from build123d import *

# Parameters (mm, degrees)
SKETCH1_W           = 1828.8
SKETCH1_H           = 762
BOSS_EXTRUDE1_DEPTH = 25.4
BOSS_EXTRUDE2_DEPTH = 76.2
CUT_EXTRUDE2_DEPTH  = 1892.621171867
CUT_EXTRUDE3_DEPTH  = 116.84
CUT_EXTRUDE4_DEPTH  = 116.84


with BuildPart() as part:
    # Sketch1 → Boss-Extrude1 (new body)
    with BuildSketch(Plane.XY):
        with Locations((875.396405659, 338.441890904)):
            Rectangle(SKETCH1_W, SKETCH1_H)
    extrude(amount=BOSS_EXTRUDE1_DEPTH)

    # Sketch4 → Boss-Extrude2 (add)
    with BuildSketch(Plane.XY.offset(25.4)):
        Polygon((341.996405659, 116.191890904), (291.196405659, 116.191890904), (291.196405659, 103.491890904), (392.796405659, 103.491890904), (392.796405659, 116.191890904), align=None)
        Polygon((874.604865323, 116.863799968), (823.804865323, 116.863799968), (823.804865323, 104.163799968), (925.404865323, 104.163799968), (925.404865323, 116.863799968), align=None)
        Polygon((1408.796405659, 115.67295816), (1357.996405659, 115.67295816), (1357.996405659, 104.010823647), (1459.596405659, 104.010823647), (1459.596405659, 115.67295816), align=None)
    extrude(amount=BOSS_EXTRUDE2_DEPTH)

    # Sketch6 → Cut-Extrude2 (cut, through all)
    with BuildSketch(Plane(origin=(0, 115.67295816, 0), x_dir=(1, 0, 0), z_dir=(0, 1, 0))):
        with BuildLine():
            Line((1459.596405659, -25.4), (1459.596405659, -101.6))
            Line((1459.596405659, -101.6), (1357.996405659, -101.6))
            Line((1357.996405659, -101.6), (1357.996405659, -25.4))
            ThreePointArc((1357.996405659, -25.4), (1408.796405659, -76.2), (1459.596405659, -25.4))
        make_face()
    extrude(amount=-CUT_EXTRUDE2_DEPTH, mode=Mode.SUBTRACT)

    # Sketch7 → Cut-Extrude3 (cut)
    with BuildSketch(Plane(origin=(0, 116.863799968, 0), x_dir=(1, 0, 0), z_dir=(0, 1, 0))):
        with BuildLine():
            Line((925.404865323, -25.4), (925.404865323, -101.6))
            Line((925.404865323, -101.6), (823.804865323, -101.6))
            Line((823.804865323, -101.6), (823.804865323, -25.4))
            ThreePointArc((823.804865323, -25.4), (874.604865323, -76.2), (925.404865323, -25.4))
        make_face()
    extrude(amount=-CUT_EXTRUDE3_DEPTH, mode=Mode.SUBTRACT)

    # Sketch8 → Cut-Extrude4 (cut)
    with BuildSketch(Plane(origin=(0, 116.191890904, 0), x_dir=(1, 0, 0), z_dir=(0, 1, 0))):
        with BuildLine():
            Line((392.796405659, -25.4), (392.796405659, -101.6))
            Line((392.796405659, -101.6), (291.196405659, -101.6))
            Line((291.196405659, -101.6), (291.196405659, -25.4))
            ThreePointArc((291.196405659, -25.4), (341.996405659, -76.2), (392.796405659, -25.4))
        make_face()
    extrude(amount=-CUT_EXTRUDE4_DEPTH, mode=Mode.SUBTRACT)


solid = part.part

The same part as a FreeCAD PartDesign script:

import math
import FreeCAD as App
import Part
import Sketcher
Q = App.Units.Quantity

doc = App.newDocument("Part")
body = doc.addObject("PartDesign::Body", "Body")

# Sketch on XY plane
sketch1 = body.newObject("Sketcher::SketchObject", "Sketch")
sketch1.AttachmentSupport = (doc.getObject("XY_Plane"), [""])
sketch1.MapMode = "FlatFace"
sketch1.addGeometry([
    Part.LineSegment(App.Vector(-39, 719, 0), App.Vector(-39, -43, 0)),
    Part.LineSegment(App.Vector(-39, -43, 0), App.Vector(1790, -43, 0)),
    Part.LineSegment(App.Vector(1790, -43, 0), App.Vector(1790, 719, 0)),
    Part.LineSegment(App.Vector(1790, 719, 0), App.Vector(-39, 719, 0)),
], False)
sketch1.addConstraint([
    Sketcher.Constraint("Coincident", 0, 2, 1, 1),
    Sketcher.Constraint("Coincident", 1, 2, 2, 1),
    Sketcher.Constraint("Coincident", 2, 2, 3, 1),
    Sketcher.Constraint("Coincident", 3, 2, 0, 1),
    Sketcher.Constraint("Vertical", 0),
    Sketcher.Constraint("Horizontal", 1),
    Sketcher.Constraint("Vertical", 2),
    Sketcher.Constraint("Horizontal", 3),
    Sketcher.Constraint("DistanceX", 1, 1, 1, 2, Q("72 in")),
    Sketcher.Constraint("DistanceY", 0, 2, 0, 1, Q("30 in")),
    Sketcher.Constraint("DistanceY", 0, 2, -1, 1, 42.558109),
    Sketcher.Constraint("DistanceX", 0, 2, -1, 1, 39.003594),
])
pad1 = body.newObject("PartDesign::Pad", "Pad")
pad1.Profile = sketch1
pad1.Length = Q("1 in")

# Sketch on XY plane
sketch2 = body.newObject("Sketcher::SketchObject", "Sketch001")
sketch2.AttachmentSupport = (doc.getObject("XY_Plane"), [""])
sketch2.MapMode = "FlatFace"
sketch2.AttachmentOffset = App.Placement(App.Vector(0, 0, 1 * 25.4), App.Rotation())
sketch2.addGeometry([
    Part.LineSegment(App.Vector(291, 116, 0), App.Vector(291, 103, 0)),  # 0
    Part.LineSegment(App.Vector(291, 103, 0), App.Vector(393, 103, 0)),  # 1
    Part.LineSegment(App.Vector(393, 103, 0), App.Vector(393, 116, 0)),  # 2
    Part.LineSegment(App.Vector(393, 116, 0), App.Vector(291, 116, 0)),  # 3
    Part.LineSegment(App.Vector(824, 117, 0), App.Vector(824, 104, 0)),  # 4
    Part.LineSegment(App.Vector(824, 104, 0), App.Vector(925, 104, 0)),  # 5
    Part.LineSegment(App.Vector(925, 104, 0), App.Vector(925, 117, 0)),  # 6
    Part.LineSegment(App.Vector(925, 117, 0), App.Vector(824, 117, 0)),  # 7
    Part.LineSegment(App.Vector(1358, 116, 0), App.Vector(1358, 104, 0)),  # 8
    Part.LineSegment(App.Vector(1358, 104, 0), App.Vector(1460, 104, 0)),  # 9
    Part.LineSegment(App.Vector(1460, 104, 0), App.Vector(1460, 116, 0)),  # 10
    Part.LineSegment(App.Vector(1460, 116, 0), App.Vector(1358, 116, 0)),  # 11
], False)
sketch2.addConstraint([
    Sketcher.Constraint("Coincident", 0, 2, 1, 1),
    Sketcher.Constraint("Coincident", 1, 2, 2, 1),
    Sketcher.Constraint("Coincident", 2, 2, 3, 1),
    Sketcher.Constraint("Coincident", 3, 2, 0, 1),
    Sketcher.Constraint("Coincident", 4, 2, 5, 1),
    Sketcher.Constraint("Coincident", 5, 2, 6, 1),
    Sketcher.Constraint("Coincident", 6, 2, 7, 1),
    Sketcher.Constraint("Coincident", 7, 2, 4, 1),
    Sketcher.Constraint("Coincident", 8, 2, 9, 1),
    Sketcher.Constraint("Coincident", 9, 2, 10, 1),
    Sketcher.Constraint("Coincident", 10, 2, 11, 1),
    Sketcher.Constraint("Coincident", 11, 2, 8, 1),
    Sketcher.Constraint("Vertical", 0),
    Sketcher.Constraint("Horizontal", 1),
    Sketcher.Constraint("Vertical", 2),
    Sketcher.Constraint("Horizontal", 3),
    Sketcher.Constraint("Vertical", 4),
    Sketcher.Constraint("Horizontal", 5),
    Sketcher.Constraint("Vertical", 6),
    Sketcher.Constraint("Horizontal", 7),
    Sketcher.Constraint("Vertical", 8),
    Sketcher.Constraint("Horizontal", 9),
    Sketcher.Constraint("Vertical", 10),
    Sketcher.Constraint("Horizontal", 11),
    Sketcher.Constraint("Equal", 3, 5),
    Sketcher.Constraint("Equal", 7, 9),
    Sketcher.Constraint("Equal", 2, 4),
    Sketcher.Constraint("DistanceX", 1, 1, 1, 2, Q("4 in")),
    Sketcher.Constraint("DistanceY", 0, 2, 0, 1, Q("0.5 in")),
    Sketcher.Constraint("DistanceX", 1, 2, 8, 2, Q("38 in")),
    Sketcher.Constraint("DistanceY", -1, 1, 4, 2, 104.1638),
    Sketcher.Constraint("DistanceY", 8, 2, 8, 1, 11.662135),
    Sketcher.Constraint("DistanceY", -1, 1, 0, 2, 103.491891),
    Sketcher.Constraint("DistanceY", -1, 1, 10, 2, 115.672958),
    Sketcher.Constraint("DistanceX", 1, 2, 4, 2, 431.00846),
    Sketcher.Constraint("DistanceX", -1, 1, 0, 2, 291.196406),
])
pad2 = body.newObject("PartDesign::Pad", "Pad001")
pad2.Profile = sketch2
pad2.Length = Q("3 in")

# Sketch on XZ plane
sketch3 = body.newObject("Sketcher::SketchObject", "Sketch002")
sketch3.AttachmentSupport = (doc.getObject("XZ_Plane"), [""])
sketch3.MapMode = "FlatFace"
sketch3.AttachmentOffset = App.Placement(App.Vector(0, 0, -115.672958), App.Rotation())
sketch3.addGeometry([
    Part.LineSegment(App.Vector(1460, 102, 0), App.Vector(1460, 25, 0)),
    Part.ArcOfCircle(Part.Circle(App.Vector(1409, 25, 0), App.Vector(0, 0, 1), 51), math.radians(0), math.radians(180)),
    Part.LineSegment(App.Vector(1358, 25, 0), App.Vector(1358, 102, 0)),
    Part.LineSegment(App.Vector(1358, 102, 0), App.Vector(1460, 102, 0)),
], False)
sketch3.addConstraint([
    Sketcher.Constraint("Tangent", 0, 2, 1, 1),
    Sketcher.Constraint("Tangent", 1, 2, 2, 1),
    Sketcher.Constraint("Coincident", 2, 2, 3, 1),
    Sketcher.Constraint("Coincident", 3, 2, 0, 1),
    Sketcher.Constraint("Vertical", 0),
    Sketcher.Constraint("Vertical", 2),
    Sketcher.Constraint("Horizontal", 3),
    Sketcher.Constraint("Radius", 1, Q("2 in")),
    Sketcher.Constraint("DistanceY", 0, 2, 0, 1, Q("3 in")),
    Sketcher.Constraint("DistanceY", -1, 1, 1, 3, Q("1 in")),
    Sketcher.Constraint("DistanceX", -1, 1, 1, 3, 1408.796406),
])
pocket1 = body.newObject("PartDesign::Pocket", "Pocket")
pocket1.Profile = sketch3
pocket1.Type = "ThroughAll"
pocket1.Reversed = True

# Sketch on XZ plane
sketch4 = body.newObject("Sketcher::SketchObject", "Sketch003")
sketch4.AttachmentSupport = (doc.getObject("XZ_Plane"), [""])
sketch4.MapMode = "FlatFace"
sketch4.AttachmentOffset = App.Placement(App.Vector(0, 0, -116.8638), App.Rotation())
sketch4.addGeometry([
    Part.LineSegment(App.Vector(925, 102, 0), App.Vector(925, 25, 0)),
    Part.ArcOfCircle(Part.Circle(App.Vector(875, 25, 0), App.Vector(0, 0, 1), 51), math.radians(0), math.radians(180)),
    Part.LineSegment(App.Vector(824, 25, 0), App.Vector(824, 102, 0)),
    Part.LineSegment(App.Vector(824, 102, 0), App.Vector(925, 102, 0)),
], False)
sketch4.addConstraint([
    Sketcher.Constraint("Tangent", 0, 2, 1, 1),
    Sketcher.Constraint("Tangent", 1, 2, 2, 1),
    Sketcher.Constraint("Coincident", 2, 2, 3, 1),
    Sketcher.Constraint("Coincident", 3, 2, 0, 1),
    Sketcher.Constraint("Vertical", 0),
    Sketcher.Constraint("Vertical", 2),
    Sketcher.Constraint("Horizontal", 3),
    Sketcher.Constraint("Radius", 1, Q("2 in")),
    Sketcher.Constraint("DistanceY", 0, 2, 0, 1, Q("3 in")),
    Sketcher.Constraint("DistanceY", -1, 1, 1, 3, Q("1 in")),
    Sketcher.Constraint("DistanceX", -1, 1, 1, 3, 874.604865),
])
pocket2 = body.newObject("PartDesign::Pocket", "Pocket001")
pocket2.Profile = sketch4
pocket2.Length = Q("4.6 in")
pocket2.Reversed = True

# Sketch on XZ plane
sketch5 = body.newObject("Sketcher::SketchObject", "Sketch004")
sketch5.AttachmentSupport = (doc.getObject("XZ_Plane"), [""])
sketch5.MapMode = "FlatFace"
sketch5.AttachmentOffset = App.Placement(App.Vector(0, 0, -116.191891), App.Rotation())
sketch5.addGeometry([
    Part.LineSegment(App.Vector(393, 102, 0), App.Vector(393, 25, 0)),
    Part.ArcOfCircle(Part.Circle(App.Vector(342, 25, 0), App.Vector(0, 0, 1), 51), math.radians(0), math.radians(180)),
    Part.LineSegment(App.Vector(291, 25, 0), App.Vector(291, 102, 0)),
    Part.LineSegment(App.Vector(291, 102, 0), App.Vector(393, 102, 0)),
], False)
sketch5.addConstraint([
    Sketcher.Constraint("Tangent", 0, 2, 1, 1),
    Sketcher.Constraint("Tangent", 1, 2, 2, 1),
    Sketcher.Constraint("Coincident", 2, 2, 3, 1),
    Sketcher.Constraint("Coincident", 3, 2, 0, 1),
    Sketcher.Constraint("Vertical", 0),
    Sketcher.Constraint("Vertical", 2),
    Sketcher.Constraint("Horizontal", 3),
    Sketcher.Constraint("Radius", 1, Q("2 in")),
    Sketcher.Constraint("DistanceY", 0, 2, 0, 1, Q("3 in")),
    Sketcher.Constraint("DistanceY", -1, 1, 1, 3, Q("1 in")),
    Sketcher.Constraint("DistanceX", -1, 1, 1, 3, 341.996406),
])
pocket3 = body.newObject("PartDesign::Pocket", "Pocket002")
pocket3.Profile = sketch5
pocket3.Length = Q("4.6 in")
pocket3.Reversed = True

doc.recompute()
